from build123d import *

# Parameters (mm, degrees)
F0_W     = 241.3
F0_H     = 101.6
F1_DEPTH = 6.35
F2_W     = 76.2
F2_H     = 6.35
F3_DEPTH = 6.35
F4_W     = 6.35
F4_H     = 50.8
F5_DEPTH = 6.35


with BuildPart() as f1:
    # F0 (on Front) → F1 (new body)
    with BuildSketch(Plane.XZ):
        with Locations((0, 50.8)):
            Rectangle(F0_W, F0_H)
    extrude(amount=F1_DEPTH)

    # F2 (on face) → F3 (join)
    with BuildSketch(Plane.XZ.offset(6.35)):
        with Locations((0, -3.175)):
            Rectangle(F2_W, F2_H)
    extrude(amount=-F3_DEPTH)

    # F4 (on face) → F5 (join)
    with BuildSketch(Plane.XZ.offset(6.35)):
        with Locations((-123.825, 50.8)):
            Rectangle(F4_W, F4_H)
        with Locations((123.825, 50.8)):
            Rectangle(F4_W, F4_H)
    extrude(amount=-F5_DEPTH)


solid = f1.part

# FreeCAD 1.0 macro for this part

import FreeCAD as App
import Part
import Sketcher
from FreeCAD import Vector
Q = App.Units.Quantity

doc = App.newDocument("Part")
body = doc.addObject("PartDesign::Body", "Body")

# Sketch on XZ plane
sketch1 = body.newObject("Sketcher::SketchObject", "Sketch")
sketch1.AttachmentSupport = (doc.getObject("XZ_Plane"), [""])
sketch1.MapMode = "FlatFace"
sketch1.addGeometry([
    Part.LineSegment(Vector(-121, 102, 0), Vector(-121, 0, 0)),
    Part.LineSegment(Vector(-121, 0, 0), Vector(121, 0, 0)),
    Part.LineSegment(Vector(121, 0, 0), Vector(121, 102, 0)),
    Part.LineSegment(Vector(121, 102, 0), Vector(-121, 102, 0)),
], False)
sketch1.addConstraint([
    Sketcher.Constraint("Coincident", 0, 2, 1, 1),
    Sketcher.Constraint("Coincident", 1, 2, 2, 1),
    Sketcher.Constraint("Coincident", 2, 2, 3, 1),
    Sketcher.Constraint("Coincident", 3, 2, 0, 1),
    Sketcher.Constraint("Vertical", 0),
    Sketcher.Constraint("Horizontal", 1),
    Sketcher.Constraint("Vertical", 2),
    Sketcher.Constraint("Horizontal", 3),
    Sketcher.Constraint("Symmetric", 0, 2, 1, 2, -1, 1),
    Sketcher.Constraint("DistanceY", 0, 2, 0, 1, Q("4 in")),
    Sketcher.Constraint("DistanceX", 1, 1, 1, 2, Q("9.5 in")),
])
pad1 = body.newObject("PartDesign::Pad", "Pad")
pad1.Profile = sketch1
pad1.Length = Q("0.25 in")

# Sketch on XZ plane
sketch2 = body.newObject("Sketcher::SketchObject", "Sketch001")
sketch2.AttachmentSupport = (doc.getObject("XZ_Plane"), [""])
sketch2.MapMode = "FlatFace"
sketch2.AttachmentOffset = App.Placement(Vector(0, 0, 0.25 * 25.4), App.Rotation())
sketch2.addGeometry([
    Part.LineSegment(Vector(-38, 0, 0), Vector(-38, -6, 0)),
    Part.LineSegment(Vector(-38, -6, 0), Vector(38, -6, 0)),
    Part.LineSegment(Vector(38, -6, 0), Vector(38, 0, 0)),
    Part.LineSegment(Vector(38, 0, 0), Vector(-38, 0, 0)),
], False)
sketch2.addConstraint([
    Sketcher.Constraint("Coincident", 0, 2, 1, 1),
    Sketcher.Constraint("Coincident", 1, 2, 2, 1),
    Sketcher.Constraint("Coincident", 2, 2, 3, 1),
    Sketcher.Constraint("Coincident", 3, 2, 0, 1),
    Sketcher.Constraint("Vertical", 0),
    Sketcher.Constraint("Horizontal", 1),
    Sketcher.Constraint("Vertical", 2),
    Sketcher.Constraint("Horizontal", 3),
    Sketcher.Constraint("Symmetric", 2, 2, 3, 2, -1, 1),
    Sketcher.Constraint("DistanceX", 1, 1, 1, 2, Q("3 in")),
    Sketcher.Constraint("DistanceY", 0, 2, 0, 1, Q("0.25 in")),
])
pad2 = body.newObject("PartDesign::Pad", "Pad001")
pad2.Profile = sketch2
pad2.Length = Q("0.25 in")
pad2.Reversed = True

# Sketch on XZ plane
sketch3 = body.newObject("Sketcher::SketchObject", "Sketch002")
sketch3.AttachmentSupport = (doc.getObject("XZ_Plane"), [""])
sketch3.MapMode = "FlatFace"
sketch3.AttachmentOffset = App.Placement(Vector(0, 0, 0.25 * 25.4), App.Rotation())
sketch3.addGeometry([
    Part.LineSegment(Vector(-127, 76, 0), Vector(-127, 25, 0)),  # 0
    Part.LineSegment(Vector(-127, 25, 0), Vector(-121, 25, 0)),  # 1
    Part.LineSegment(Vector(-121, 25, 0), Vector(-121, 76, 0)),  # 2
    Part.LineSegment(Vector(-121, 76, 0), Vector(-127, 76, 0)),  # 3
    Part.LineSegment(Vector(121, 76, 0), Vector(121, 25, 0)),  # 4
    Part.LineSegment(Vector(121, 25, 0), Vector(127, 25, 0)),  # 5
    Part.LineSegment(Vector(127, 25, 0), Vector(127, 76, 0)),  # 6
    Part.LineSegment(Vector(127, 76, 0), Vector(121, 76, 0)),  # 7
], False)
sketch3.addConstraint([
    Sketcher.Constraint("Coincident", 0, 2, 1, 1),
    Sketcher.Constraint("Coincident", 1, 2, 2, 1),
    Sketcher.Constraint("Coincident", 2, 2, 3, 1),
    Sketcher.Constraint("Coincident", 3, 2, 0, 1),
    Sketcher.Constraint("Coincident", 4, 2, 5, 1),
    Sketcher.Constraint("Coincident", 5, 2, 6, 1),
    Sketcher.Constraint("Coincident", 6, 2, 7, 1),
    Sketcher.Constraint("Coincident", 7, 2, 4, 1),
    Sketcher.Constraint("Vertical", 0),
    Sketcher.Constraint("Horizontal", 1),
    Sketcher.Constraint("Vertical", 2),
    Sketcher.Constraint("Horizontal", 3),
    Sketcher.Constraint("Vertical", 4),
    Sketcher.Constraint("Horizontal", 5),
    Sketcher.Constraint("Vertical", 6),
    Sketcher.Constraint("Horizontal", 7),
    Sketcher.Constraint("Symmetric", 1, 2, 4, 2, -2),
    Sketcher.Constraint("Symmetric", 3, 2, 6, 2, -2),
    Sketcher.Constraint("DistanceY", 0, 2, 0, 1, Q("2 in")),
    Sketcher.Constraint("DistanceX", 0, 2, -1, 1, Q("5 in")),
    Sketcher.Constraint("DistanceY", -1, 1, 0, 2, Q("1 in")),
    Sketcher.Constraint("DistanceX", 1, 1, 1, 2, Q("0.25 in")),
])
pad3 = body.newObject("PartDesign::Pad", "Pad002")
pad3.Profile = sketch3
pad3.Length = Q("0.25 in")
pad3.Reversed = True

doc.recompute()
